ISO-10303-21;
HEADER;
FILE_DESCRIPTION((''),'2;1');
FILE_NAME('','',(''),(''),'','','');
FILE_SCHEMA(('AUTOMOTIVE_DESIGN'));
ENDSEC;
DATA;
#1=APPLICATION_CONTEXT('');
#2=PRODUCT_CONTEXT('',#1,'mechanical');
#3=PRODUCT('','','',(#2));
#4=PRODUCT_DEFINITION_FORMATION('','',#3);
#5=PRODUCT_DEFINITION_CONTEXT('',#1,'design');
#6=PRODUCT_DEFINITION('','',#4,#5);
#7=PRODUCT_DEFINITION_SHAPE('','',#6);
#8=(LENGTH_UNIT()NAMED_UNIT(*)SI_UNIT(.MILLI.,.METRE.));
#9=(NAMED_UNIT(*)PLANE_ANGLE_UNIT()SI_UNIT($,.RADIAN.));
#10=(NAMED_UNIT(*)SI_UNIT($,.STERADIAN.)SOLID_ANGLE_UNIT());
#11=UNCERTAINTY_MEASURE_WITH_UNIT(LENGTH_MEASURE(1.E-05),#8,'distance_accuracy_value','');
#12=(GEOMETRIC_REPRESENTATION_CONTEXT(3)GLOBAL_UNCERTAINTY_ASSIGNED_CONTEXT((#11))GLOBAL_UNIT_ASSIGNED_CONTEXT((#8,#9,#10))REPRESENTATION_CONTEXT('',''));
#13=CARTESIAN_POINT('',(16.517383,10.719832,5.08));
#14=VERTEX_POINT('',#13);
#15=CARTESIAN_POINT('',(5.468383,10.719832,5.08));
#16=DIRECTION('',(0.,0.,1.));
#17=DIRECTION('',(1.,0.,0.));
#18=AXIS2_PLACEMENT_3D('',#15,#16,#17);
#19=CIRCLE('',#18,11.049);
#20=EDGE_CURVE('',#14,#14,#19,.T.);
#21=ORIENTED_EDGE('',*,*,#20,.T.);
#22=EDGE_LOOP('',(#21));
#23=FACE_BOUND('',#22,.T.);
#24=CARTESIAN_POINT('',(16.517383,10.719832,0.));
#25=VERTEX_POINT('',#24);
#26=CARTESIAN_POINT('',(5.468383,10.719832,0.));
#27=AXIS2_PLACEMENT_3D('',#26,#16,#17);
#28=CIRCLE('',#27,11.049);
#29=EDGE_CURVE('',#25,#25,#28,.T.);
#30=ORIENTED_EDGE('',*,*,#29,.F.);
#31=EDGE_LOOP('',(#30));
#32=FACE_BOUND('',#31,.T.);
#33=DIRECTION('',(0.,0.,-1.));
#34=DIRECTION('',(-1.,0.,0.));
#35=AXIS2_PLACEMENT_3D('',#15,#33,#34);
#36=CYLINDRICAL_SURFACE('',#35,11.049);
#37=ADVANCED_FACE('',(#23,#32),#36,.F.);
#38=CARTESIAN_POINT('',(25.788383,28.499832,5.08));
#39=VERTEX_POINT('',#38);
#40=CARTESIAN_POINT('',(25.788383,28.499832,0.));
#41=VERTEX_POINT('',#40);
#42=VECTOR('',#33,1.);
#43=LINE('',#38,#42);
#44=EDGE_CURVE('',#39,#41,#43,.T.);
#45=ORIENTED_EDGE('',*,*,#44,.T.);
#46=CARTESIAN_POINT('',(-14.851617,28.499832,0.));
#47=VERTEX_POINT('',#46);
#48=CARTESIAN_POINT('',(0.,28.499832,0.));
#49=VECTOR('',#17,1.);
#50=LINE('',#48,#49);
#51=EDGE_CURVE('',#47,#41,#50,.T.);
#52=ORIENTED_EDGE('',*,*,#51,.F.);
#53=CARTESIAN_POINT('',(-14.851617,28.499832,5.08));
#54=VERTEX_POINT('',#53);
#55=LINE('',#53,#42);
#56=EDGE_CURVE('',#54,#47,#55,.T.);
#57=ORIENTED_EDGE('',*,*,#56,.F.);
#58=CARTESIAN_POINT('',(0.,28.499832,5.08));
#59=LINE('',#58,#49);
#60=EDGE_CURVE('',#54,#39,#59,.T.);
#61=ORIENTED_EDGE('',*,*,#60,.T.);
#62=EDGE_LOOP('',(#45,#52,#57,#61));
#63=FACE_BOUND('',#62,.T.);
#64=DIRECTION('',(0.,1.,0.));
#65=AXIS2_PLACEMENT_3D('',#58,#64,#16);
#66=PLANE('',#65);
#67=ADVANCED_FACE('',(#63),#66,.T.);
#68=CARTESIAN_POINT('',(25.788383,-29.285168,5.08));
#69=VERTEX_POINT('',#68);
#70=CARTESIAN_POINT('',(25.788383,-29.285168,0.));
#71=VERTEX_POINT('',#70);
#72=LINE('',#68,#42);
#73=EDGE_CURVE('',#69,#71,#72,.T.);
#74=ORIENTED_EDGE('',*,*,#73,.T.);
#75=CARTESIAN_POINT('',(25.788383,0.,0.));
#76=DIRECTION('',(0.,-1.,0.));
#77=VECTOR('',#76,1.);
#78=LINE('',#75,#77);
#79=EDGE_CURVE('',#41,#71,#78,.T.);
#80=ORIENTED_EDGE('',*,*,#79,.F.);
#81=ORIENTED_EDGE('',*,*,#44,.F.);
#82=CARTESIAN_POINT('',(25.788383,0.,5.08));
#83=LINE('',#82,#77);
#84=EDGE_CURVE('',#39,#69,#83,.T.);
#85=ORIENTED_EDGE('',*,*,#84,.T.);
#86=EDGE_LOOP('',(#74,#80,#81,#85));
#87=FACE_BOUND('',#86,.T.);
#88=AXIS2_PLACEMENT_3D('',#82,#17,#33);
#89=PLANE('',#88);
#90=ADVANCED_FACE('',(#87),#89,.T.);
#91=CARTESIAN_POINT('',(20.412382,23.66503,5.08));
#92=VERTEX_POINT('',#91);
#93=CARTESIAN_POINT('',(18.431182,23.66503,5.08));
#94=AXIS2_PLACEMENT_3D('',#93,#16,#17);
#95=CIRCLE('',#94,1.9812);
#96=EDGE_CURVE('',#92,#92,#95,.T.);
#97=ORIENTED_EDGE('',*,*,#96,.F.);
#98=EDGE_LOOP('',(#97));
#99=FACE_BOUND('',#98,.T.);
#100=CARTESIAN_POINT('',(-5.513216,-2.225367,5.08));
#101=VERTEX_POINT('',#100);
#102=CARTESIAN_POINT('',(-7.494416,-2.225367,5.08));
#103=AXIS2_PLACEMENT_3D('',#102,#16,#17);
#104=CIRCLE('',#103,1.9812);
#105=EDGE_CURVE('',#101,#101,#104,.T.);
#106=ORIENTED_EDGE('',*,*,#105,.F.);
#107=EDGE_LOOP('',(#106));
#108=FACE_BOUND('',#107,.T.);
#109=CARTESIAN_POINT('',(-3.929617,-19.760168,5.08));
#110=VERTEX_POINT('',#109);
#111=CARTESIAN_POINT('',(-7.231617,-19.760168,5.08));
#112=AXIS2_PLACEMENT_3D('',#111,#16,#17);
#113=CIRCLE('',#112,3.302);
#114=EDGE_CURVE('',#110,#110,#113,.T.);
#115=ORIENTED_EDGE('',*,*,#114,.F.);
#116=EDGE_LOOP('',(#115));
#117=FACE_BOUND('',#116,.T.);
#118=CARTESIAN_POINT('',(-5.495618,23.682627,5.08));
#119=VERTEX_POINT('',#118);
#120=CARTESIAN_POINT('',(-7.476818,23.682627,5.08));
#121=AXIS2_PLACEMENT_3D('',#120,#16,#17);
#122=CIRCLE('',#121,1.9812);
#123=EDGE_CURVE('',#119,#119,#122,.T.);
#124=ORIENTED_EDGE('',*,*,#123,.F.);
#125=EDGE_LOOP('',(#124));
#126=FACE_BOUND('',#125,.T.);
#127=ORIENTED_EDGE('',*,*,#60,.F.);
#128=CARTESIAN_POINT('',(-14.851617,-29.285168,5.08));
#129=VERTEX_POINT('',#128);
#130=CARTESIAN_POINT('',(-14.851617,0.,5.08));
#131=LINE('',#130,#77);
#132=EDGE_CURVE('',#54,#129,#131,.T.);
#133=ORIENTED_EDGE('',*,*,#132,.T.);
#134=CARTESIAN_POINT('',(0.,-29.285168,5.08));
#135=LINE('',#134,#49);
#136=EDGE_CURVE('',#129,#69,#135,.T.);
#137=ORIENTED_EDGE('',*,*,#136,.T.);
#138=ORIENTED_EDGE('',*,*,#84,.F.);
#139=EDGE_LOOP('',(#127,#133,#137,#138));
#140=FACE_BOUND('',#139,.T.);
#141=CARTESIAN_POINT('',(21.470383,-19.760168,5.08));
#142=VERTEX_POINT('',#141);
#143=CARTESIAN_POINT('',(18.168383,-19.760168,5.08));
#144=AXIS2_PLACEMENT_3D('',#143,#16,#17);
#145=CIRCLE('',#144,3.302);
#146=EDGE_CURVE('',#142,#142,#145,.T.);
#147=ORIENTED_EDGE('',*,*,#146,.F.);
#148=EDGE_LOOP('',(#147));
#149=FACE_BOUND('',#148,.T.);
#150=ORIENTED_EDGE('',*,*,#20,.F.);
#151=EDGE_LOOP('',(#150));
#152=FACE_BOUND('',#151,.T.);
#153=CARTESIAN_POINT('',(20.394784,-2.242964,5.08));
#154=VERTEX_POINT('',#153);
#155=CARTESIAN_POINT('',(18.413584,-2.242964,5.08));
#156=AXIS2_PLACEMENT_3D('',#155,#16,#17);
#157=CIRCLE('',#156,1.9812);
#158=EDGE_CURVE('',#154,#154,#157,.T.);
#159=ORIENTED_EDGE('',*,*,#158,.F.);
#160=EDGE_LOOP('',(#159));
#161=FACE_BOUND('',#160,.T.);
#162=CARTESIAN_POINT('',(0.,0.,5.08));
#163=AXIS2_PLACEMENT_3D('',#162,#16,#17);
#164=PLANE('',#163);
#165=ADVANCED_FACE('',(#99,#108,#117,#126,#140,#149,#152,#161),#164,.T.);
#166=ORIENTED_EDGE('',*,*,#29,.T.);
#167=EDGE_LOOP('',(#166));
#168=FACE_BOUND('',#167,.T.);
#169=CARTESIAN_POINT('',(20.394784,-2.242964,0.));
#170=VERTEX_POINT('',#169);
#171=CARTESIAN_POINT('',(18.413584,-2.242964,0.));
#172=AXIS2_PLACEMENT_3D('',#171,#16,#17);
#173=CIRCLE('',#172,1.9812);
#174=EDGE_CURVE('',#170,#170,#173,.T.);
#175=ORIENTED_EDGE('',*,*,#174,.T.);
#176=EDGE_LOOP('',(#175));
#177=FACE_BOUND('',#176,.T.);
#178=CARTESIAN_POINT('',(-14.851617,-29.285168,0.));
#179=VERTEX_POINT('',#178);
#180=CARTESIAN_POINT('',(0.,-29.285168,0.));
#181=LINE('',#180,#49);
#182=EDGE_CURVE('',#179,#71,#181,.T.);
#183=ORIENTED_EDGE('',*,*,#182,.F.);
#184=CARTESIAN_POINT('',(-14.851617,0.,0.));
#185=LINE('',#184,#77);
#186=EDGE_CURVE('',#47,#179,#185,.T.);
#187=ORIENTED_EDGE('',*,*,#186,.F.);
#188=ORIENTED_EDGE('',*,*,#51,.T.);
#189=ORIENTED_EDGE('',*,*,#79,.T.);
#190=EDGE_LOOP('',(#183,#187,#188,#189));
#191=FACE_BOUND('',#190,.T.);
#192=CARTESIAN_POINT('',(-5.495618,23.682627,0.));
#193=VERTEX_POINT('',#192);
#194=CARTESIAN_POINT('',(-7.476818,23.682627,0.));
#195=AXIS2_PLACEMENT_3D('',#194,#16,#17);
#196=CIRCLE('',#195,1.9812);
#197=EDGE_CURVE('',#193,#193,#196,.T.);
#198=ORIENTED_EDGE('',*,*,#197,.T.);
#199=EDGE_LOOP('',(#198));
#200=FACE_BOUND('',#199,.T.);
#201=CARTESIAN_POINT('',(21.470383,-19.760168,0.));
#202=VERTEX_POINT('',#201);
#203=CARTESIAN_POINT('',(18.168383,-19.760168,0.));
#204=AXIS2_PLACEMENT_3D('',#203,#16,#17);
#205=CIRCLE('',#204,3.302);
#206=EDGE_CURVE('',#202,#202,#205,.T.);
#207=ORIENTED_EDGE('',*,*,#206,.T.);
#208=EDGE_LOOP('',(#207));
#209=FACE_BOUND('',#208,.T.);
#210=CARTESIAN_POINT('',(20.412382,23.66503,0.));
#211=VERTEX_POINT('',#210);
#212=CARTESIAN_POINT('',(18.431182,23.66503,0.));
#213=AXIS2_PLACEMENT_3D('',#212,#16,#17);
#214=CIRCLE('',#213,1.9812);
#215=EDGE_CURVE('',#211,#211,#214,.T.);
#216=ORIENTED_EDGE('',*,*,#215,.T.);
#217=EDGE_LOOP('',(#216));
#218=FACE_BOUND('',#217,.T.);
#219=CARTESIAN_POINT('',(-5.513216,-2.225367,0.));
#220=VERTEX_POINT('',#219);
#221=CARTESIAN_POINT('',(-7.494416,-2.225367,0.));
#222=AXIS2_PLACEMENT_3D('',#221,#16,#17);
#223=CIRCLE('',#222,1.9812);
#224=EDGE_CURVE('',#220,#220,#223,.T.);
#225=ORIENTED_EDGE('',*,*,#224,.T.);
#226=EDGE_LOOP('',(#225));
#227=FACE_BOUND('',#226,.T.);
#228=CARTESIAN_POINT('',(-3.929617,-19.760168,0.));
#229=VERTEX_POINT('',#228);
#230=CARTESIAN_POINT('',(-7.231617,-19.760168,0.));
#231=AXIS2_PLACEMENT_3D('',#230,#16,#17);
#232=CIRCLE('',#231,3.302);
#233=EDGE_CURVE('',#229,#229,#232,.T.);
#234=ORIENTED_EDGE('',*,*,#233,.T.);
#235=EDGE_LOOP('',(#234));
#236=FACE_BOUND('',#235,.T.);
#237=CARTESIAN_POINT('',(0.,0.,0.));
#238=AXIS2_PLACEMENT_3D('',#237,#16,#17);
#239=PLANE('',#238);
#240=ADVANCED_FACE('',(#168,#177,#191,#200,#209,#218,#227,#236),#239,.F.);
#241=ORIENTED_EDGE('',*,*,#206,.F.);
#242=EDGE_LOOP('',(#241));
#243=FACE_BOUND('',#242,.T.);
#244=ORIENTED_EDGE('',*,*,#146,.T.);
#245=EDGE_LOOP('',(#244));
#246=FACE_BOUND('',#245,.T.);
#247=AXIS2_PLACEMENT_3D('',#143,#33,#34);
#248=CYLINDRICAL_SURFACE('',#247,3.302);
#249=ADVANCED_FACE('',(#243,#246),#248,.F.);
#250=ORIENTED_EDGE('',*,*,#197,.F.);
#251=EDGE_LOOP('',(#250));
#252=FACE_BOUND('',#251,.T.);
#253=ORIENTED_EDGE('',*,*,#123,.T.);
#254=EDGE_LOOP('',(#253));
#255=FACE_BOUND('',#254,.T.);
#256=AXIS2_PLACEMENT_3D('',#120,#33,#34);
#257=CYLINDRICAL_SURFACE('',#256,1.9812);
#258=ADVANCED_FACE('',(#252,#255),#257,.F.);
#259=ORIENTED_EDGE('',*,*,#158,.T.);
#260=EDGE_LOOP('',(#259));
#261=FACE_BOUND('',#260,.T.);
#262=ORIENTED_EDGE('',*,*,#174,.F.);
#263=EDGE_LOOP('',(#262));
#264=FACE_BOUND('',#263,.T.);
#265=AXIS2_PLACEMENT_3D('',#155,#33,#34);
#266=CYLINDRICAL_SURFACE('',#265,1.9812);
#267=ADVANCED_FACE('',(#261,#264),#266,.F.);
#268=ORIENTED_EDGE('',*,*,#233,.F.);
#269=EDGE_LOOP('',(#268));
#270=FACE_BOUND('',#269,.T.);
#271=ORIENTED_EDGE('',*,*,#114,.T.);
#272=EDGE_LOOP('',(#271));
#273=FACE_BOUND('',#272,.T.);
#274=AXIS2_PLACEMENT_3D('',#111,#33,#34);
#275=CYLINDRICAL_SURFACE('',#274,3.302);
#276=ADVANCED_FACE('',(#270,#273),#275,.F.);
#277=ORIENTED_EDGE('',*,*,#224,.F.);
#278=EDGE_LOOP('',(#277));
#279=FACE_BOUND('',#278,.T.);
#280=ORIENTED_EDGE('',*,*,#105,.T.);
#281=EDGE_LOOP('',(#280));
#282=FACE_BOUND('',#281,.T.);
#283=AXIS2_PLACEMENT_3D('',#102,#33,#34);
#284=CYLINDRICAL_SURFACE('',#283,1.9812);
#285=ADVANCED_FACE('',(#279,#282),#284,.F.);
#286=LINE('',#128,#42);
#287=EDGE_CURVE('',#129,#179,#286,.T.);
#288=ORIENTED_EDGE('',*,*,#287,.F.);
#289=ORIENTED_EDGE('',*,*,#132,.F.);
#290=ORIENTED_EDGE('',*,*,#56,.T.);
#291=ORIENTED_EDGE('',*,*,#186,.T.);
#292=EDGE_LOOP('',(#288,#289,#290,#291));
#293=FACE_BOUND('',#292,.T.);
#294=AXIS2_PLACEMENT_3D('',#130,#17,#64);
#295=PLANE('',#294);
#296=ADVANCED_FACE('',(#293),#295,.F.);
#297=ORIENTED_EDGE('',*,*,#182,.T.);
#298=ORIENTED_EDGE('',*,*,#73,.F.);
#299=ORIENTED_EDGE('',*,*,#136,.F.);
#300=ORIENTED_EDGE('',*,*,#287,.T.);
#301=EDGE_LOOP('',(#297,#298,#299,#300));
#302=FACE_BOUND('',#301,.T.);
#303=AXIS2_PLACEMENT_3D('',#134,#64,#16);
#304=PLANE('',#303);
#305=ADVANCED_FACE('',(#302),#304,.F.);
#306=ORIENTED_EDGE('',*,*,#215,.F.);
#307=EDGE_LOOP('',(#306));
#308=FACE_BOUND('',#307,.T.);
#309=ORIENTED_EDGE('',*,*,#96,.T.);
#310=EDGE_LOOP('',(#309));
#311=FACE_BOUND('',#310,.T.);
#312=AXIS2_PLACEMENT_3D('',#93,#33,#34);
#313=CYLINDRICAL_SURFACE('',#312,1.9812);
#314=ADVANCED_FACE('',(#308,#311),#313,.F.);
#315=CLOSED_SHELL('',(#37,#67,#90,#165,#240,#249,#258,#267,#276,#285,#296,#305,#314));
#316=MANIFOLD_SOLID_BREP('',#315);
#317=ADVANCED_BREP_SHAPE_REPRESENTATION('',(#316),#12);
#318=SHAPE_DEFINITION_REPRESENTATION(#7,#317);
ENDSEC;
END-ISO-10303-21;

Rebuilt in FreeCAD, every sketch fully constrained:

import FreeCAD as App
import Part
import Sketcher
Q = App.Units.Quantity

doc = App.newDocument("Part")
body = doc.addObject("PartDesign::Body", "Body")

# Sketch on XY plane
sketch1 = body.newObject("Sketcher::SketchObject", "Sketch")
sketch1.AttachmentSupport = (doc.getObject("XY_Plane"), [""])
sketch1.MapMode = "FlatFace"
sketch1.addGeometry([
    Part.LineSegment(App.Vector(-14.851617, -29.285168, 0), App.Vector(25.788383, -29.285168, 0)),  # 0
    Part.LineSegment(App.Vector(25.788383, -29.285168, 0), App.Vector(25.788383, 28.499832, 0)),  # 1
    Part.LineSegment(App.Vector(25.788383, 28.499832, 0), App.Vector(-14.851617, 28.499832, 0)),  # 2
    Part.LineSegment(App.Vector(-14.851617, 28.499832, 0), App.Vector(-14.851617, -29.285168, 0)),  # 3
    Part.Circle(App.Vector(-7.231617, -19.760168, 0), App.Vector(0, 0, 1), 3.302),  # 4
    Part.Circle(App.Vector(-7.494416, -2.225367, 0), App.Vector(0, 0, 1), 1.9812),  # 5
    Part.Circle(App.Vector(18.168383, -19.760168, 0), App.Vector(0, 0, 1), 3.302),  # 6
    Part.Circle(App.Vector(18.413584, -2.242964, 0), App.Vector(0, 0, 1), 1.9812),  # 7
    Part.Circle(App.Vector(-7.476818, 23.682627, 0), App.Vector(0, 0, 1), 1.9812),  # 8
    Part.Circle(App.Vector(5.468383, 10.719832, 0), App.Vector(0, 0, 1), 11.049),  # 9
    Part.Circle(App.Vector(18.431182, 23.66503, 0), App.Vector(0, 0, 1), 1.9812),  # 10
], False)
sketch1.addConstraint([
    Sketcher.Constraint("Coincident", 0, 2, 1, 1),
    Sketcher.Constraint("Coincident", 1, 2, 2, 1),
    Sketcher.Constraint("Coincident", 2, 2, 3, 1),
    Sketcher.Constraint("Coincident", 3, 2, 0, 1),
    Sketcher.Constraint("Horizontal", 0),
    Sketcher.Constraint("Vertical", 1),
    Sketcher.Constraint("Horizontal", 2),
    Sketcher.Constraint("Vertical", 3),
    Sketcher.Constraint("Equal", 4, 6),
    Sketcher.Constraint("Equal", 5, 7),
    Sketcher.Constraint("Equal", 7, 8),
    Sketcher.Constraint("Equal", 8, 10),
    Sketcher.Constraint("Horizontal", 4, 3, 6, 3),
    Sketcher.Constraint("Diameter", 4, Q("0.26 in")),
    Sketcher.Constraint("Diameter", 9, Q("0.87 in")),
    Sketcher.Constraint("Diameter", 5, Q("0.156 in")),
    Sketcher.Constraint("DistanceX", 0, 1, 0, 2, Q("1.6 in")),
    Sketcher.Constraint("DistanceX", 4, 3, 6, 3, Q("1 in")),
    Sketcher.Constraint("DistanceX", 4, 3, 9, 3, Q("0.5 in")),
    Sketcher.Constraint("DistanceY", 4, 3, 9, 3, Q("1.2 in")),
    Sketcher.Constraint("DistanceX", 6, 3, 0, 2, Q("0.3 in")),
    Sketcher.Constraint("DistanceY", 9, 3, 1, 2, Q("0.7 in")),
    Sketcher.Constraint("DistanceY", 1, 1, 1, 2, Q("2.275 in")),
    Sketcher.Constraint("DistanceX", 5, 3, 7, 3, Q("1.02 in")),
    Sketcher.Constraint("DistanceX", 8, 3, 10, 3, Q("1.02 in")),
    Sketcher.Constraint("DistanceX", 5, 3, 4, 3, 0.262799),
    Sketcher.Constraint("DistanceY", 4, 3, 5, 3, 17.534802),
    Sketcher.Constraint("DistanceX", 8, 3, 4, 3, 0.245201),
    Sketcher.Constraint("DistanceY", 9, 3, 10, 3, 12.945198),
    Sketcher.Constraint("DistanceY", 4, 3, -1, 1, 19.760168),
    Sketcher.Constraint("DistanceX", 8, 3, -1, 1, 7.476818),
    Sketcher.Constraint("DistanceY", 7, 3, 8, 3, 25.925592),
    Sketcher.Constraint("DistanceY", 7, 3, -1, 1, 2.242964),
])
pad1 = body.newObject("PartDesign::Pad", "Pad")
pad1.Profile = sketch1
pad1.Length = Q("0.2 in")

doc.recompute()
